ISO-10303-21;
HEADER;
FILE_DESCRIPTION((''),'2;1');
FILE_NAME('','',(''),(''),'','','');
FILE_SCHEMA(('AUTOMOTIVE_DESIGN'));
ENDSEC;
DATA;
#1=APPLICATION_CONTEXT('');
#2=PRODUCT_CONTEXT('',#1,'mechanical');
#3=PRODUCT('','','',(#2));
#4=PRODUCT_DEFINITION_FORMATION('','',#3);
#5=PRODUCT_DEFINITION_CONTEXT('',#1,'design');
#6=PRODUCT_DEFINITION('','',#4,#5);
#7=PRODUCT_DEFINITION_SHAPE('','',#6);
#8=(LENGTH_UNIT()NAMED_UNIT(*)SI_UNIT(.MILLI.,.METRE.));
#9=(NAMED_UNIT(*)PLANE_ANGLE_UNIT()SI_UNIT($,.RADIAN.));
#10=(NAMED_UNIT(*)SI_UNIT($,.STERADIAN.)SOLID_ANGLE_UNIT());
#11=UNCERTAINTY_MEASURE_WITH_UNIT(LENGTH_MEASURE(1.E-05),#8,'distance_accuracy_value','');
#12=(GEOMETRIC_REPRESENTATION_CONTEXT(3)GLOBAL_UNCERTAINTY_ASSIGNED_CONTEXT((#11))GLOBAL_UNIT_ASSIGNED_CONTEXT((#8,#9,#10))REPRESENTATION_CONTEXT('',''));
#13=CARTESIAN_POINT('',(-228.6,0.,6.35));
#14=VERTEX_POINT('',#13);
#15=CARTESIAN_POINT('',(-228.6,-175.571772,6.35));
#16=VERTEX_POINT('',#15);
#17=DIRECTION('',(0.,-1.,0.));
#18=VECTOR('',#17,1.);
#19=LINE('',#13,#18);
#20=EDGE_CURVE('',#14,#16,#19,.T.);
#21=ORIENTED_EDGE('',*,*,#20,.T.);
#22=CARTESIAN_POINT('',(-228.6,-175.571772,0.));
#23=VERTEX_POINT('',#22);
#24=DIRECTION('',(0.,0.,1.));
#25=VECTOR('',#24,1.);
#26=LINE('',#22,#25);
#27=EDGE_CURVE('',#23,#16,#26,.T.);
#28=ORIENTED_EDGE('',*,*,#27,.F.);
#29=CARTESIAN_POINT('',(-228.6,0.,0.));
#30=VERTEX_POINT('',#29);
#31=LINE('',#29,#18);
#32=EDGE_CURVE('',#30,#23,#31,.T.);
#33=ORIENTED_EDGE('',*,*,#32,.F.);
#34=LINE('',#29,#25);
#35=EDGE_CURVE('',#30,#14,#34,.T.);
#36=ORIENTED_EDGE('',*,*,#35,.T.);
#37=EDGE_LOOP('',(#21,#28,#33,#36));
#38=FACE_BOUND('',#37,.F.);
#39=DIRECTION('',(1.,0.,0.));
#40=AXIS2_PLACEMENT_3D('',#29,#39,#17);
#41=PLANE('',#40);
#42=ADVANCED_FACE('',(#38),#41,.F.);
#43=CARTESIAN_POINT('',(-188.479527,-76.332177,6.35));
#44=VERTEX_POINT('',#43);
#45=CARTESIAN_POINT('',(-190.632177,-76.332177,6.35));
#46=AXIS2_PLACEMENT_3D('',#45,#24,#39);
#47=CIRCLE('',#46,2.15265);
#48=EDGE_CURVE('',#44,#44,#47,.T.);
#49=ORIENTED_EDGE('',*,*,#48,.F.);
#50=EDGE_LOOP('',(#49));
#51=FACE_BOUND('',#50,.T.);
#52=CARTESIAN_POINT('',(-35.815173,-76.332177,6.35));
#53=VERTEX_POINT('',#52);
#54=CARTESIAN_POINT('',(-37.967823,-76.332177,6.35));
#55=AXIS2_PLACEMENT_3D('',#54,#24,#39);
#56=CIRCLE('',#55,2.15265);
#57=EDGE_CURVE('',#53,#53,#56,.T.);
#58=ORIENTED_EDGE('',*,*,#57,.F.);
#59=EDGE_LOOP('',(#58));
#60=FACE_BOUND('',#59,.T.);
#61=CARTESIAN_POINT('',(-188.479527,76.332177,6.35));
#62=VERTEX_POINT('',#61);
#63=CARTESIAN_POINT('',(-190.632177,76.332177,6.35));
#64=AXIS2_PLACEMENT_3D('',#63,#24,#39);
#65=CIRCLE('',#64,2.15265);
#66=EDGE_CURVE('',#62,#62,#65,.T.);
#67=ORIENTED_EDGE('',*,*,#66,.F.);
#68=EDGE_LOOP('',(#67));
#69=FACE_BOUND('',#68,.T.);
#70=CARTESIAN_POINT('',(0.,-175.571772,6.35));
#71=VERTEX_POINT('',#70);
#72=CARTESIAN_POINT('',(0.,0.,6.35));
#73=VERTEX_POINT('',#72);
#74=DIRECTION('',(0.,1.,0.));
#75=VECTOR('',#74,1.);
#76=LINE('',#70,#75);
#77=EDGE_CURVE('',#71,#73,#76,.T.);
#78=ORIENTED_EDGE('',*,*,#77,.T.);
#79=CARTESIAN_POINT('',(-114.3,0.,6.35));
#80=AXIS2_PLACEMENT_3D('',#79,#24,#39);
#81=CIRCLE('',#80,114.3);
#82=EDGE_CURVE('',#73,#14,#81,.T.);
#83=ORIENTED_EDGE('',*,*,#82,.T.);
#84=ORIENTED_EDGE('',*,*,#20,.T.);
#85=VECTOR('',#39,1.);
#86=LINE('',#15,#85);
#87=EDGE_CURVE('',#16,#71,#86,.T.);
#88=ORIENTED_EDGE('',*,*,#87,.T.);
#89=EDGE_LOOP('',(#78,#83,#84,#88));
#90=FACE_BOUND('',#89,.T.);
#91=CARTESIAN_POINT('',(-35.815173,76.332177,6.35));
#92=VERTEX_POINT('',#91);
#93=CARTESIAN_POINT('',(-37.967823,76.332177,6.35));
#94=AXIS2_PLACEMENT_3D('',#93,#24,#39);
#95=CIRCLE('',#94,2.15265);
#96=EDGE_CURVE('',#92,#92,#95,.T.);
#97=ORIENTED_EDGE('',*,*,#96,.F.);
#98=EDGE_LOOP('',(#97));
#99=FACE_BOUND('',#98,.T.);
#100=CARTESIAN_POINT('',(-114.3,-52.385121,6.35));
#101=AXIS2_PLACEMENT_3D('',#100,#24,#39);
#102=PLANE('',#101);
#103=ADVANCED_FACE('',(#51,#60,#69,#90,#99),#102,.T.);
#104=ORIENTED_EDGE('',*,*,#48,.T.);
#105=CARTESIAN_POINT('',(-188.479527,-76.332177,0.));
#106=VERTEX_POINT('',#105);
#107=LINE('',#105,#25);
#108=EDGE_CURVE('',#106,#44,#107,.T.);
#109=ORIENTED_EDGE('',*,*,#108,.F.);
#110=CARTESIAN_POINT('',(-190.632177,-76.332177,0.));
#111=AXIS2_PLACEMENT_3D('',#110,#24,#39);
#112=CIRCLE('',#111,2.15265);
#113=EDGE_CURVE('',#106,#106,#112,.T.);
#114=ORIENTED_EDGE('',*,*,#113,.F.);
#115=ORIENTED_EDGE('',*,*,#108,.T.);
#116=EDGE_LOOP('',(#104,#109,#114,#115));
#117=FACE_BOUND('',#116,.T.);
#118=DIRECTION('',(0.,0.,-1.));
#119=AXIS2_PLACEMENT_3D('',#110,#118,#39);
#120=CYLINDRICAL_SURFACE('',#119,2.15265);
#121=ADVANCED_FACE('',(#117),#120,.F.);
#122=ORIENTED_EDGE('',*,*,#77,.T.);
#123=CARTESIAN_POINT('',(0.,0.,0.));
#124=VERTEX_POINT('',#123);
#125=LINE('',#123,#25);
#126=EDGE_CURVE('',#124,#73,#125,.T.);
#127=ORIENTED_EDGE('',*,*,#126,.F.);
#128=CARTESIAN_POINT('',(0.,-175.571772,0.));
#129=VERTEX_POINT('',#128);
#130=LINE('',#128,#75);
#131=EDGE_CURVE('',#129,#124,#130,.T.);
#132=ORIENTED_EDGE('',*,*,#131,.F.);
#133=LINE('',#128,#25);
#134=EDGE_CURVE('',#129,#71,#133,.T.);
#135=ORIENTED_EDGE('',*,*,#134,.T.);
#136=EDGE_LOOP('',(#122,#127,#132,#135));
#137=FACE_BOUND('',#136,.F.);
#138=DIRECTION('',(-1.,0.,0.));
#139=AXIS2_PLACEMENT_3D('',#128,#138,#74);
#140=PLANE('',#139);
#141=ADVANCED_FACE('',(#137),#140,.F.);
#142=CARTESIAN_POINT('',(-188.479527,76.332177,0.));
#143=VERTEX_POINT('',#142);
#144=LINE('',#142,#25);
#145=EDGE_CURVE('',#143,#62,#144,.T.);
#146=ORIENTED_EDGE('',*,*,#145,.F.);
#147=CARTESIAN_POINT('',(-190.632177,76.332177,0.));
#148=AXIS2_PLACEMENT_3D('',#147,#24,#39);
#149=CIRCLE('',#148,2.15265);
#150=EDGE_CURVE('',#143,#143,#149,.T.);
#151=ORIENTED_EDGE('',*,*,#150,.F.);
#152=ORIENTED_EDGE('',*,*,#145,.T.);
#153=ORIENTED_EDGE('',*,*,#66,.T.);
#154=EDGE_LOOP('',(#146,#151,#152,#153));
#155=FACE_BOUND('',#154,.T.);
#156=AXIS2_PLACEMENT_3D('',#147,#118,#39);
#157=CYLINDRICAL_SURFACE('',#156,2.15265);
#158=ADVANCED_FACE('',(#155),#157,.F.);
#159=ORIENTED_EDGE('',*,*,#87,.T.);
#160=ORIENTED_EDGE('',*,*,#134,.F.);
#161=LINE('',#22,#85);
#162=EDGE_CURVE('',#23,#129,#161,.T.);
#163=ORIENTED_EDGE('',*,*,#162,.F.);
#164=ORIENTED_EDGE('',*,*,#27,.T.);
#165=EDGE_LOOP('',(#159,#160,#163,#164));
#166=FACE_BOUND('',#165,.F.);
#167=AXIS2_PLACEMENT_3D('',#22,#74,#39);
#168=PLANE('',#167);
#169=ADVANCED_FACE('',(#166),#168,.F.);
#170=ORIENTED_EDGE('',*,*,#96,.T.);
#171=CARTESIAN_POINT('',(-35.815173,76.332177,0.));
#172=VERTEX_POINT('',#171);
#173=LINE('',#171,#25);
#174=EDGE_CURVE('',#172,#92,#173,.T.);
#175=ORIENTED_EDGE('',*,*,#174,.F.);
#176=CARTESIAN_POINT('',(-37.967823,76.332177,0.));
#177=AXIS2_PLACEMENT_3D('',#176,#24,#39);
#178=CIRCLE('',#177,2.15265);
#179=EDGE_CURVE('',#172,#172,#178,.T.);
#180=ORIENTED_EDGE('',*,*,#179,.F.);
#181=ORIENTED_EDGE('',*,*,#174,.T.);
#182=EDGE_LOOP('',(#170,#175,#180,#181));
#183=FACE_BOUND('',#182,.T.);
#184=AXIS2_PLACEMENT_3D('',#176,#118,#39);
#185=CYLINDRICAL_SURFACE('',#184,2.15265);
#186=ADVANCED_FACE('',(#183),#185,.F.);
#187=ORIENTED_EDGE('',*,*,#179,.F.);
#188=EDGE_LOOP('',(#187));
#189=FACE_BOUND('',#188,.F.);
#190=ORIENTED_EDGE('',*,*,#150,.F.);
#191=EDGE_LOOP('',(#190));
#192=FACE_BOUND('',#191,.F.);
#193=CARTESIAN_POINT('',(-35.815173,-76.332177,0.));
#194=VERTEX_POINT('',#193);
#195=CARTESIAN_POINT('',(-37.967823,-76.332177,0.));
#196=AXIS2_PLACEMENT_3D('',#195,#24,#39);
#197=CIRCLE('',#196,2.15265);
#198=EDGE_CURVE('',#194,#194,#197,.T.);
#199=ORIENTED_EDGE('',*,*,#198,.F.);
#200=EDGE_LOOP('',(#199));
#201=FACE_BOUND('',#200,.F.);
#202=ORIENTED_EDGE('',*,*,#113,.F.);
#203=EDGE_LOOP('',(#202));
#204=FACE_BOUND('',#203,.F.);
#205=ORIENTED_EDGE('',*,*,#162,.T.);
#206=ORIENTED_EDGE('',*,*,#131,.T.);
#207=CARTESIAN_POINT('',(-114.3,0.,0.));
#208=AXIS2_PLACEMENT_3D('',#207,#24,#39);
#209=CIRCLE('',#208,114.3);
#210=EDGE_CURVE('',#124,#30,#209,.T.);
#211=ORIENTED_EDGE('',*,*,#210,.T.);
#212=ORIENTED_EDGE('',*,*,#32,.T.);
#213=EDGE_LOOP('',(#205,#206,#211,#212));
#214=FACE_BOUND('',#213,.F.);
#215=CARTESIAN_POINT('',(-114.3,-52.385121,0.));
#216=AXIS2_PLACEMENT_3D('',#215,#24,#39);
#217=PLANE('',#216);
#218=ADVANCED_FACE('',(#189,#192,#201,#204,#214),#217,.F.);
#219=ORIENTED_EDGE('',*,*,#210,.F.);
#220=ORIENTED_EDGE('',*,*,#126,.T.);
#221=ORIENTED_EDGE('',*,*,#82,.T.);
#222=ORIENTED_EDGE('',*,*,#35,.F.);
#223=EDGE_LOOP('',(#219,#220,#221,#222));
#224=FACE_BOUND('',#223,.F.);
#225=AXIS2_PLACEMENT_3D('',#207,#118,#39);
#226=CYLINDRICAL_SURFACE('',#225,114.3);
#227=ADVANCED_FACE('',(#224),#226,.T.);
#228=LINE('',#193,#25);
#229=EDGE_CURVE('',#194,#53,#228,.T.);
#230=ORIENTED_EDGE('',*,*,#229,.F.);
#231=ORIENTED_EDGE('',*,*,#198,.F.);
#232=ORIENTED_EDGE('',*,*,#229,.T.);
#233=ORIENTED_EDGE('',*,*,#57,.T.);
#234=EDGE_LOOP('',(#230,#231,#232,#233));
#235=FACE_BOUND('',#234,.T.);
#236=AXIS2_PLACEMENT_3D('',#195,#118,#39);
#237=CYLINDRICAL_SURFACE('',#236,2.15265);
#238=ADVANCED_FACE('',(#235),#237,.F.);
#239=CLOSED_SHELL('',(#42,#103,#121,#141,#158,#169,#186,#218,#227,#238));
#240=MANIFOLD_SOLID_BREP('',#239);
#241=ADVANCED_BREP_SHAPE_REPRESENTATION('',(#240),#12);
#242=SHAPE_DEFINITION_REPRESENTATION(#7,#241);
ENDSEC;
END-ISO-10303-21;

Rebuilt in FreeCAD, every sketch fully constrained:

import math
import FreeCAD as App
import Part
import Sketcher
from FreeCAD import Vector
Q = App.Units.Quantity

doc = App.newDocument("Part")
body = doc.addObject("PartDesign::Body", "Body")

# Sketch on XY plane
sketch1 = body.newObject("Sketcher::SketchObject", "Sketch")
sketch1.AttachmentSupport = (doc.getObject("XY_Plane"), [""])
sketch1.MapMode = "FlatFace"
sketch1.addGeometry(Part.LineSegment(Vector(-228.6, -175.6, 0), Vector(0, -175.6, 0)), False)
sketch1.addGeometry(Part.LineSegment(Vector(0, -175.6, 0), Vector(0, 0, 0)), False)
sketch1.addGeometry(Part.ArcOfCircle(Part.Circle(Vector(-114.3, 0, 0), Vector(0, 0, 1), 114.3), math.radians(0), math.radians(180)), False)
sketch1.addGeometry(Part.LineSegment(Vector(-228.6, 0, 0), Vector(-228.6, -175.6, 0)), False)
sketch1.addGeometry(Part.Circle(Vector(-190.6, -76.3, 0), Vector(0, 0, 1), 2.2), False)
sketch1.addGeometry(Part.Circle(Vector(-38, -76.3, 0), Vector(0, 0, 1), 2.2), False)
sketch1.addGeometry(Part.Circle(Vector(-190.6, 76.3, 0), Vector(0, 0, 1), 2.2), False)
sketch1.addGeometry(Part.Circle(Vector(-38, 76.3, 0), Vector(0, 0, 1), 2.2), False)
sketch1.addConstraint(Sketcher.Constraint("Coincident", 0, 2, 1, 1))
sketch1.addConstraint(Sketcher.Constraint("Tangent", 1, 2, 2, 1))
sketch1.addConstraint(Sketcher.Constraint("Tangent", 2, 2, 3, 1))
sketch1.addConstraint(Sketcher.Constraint("Coincident", 3, 2, 0, 1))
sketch1.addConstraint(Sketcher.Constraint("Horizontal", 0))
sketch1.addConstraint(Sketcher.Constraint("Vertical", 1))
sketch1.addConstraint(Sketcher.Constraint("Vertical", 3))
sketch1.addConstraint(Sketcher.Constraint("Coincident", 1, 2, -1, 1))
sketch1.addConstraint(Sketcher.Constraint("Equal", 4, 5))
sketch1.addConstraint(Sketcher.Constraint("Equal", 5, 6))
sketch1.addConstraint(Sketcher.Constraint("Equal", 6, 7))
sketch1.addConstraint(Sketcher.Constraint("Symmetric", 4, 3, 6, 3, -1))
sketch1.addConstraint(Sketcher.Constraint("Symmetric", 5, 3, 7, 3, -1))
sketch1.addConstraint(Sketcher.Constraint("Horizontal", 4, 3, 5, 3))
sketch1.addConstraint(Sketcher.Constraint("Radius", 2, Q("4.5 in")))
sketch1.addConstraint(Sketcher.Constraint("Diameter", 4, Q("0.1695 in")))
sketch1.addConstraint(Sketcher.Constraint("DistanceY", 1, 1, 1, 2, 175.571772))
sketch1.addConstraint(Sketcher.Constraint("DistanceY", 0, 2, 7, 3, 251.903949))
sketch1.addConstraint(Sketcher.Constraint("DistanceX", 4, 3, -1, 1, 190.632177))
sketch1.addConstraint(Sketcher.Constraint("DistanceX", 5, 3, -1, 1, 37.967823))
pad1 = body.newObject("PartDesign::Pad", "Pad")
pad1.Profile = sketch1
pad1.Length = Q("0.25 in")

doc.recompute()
